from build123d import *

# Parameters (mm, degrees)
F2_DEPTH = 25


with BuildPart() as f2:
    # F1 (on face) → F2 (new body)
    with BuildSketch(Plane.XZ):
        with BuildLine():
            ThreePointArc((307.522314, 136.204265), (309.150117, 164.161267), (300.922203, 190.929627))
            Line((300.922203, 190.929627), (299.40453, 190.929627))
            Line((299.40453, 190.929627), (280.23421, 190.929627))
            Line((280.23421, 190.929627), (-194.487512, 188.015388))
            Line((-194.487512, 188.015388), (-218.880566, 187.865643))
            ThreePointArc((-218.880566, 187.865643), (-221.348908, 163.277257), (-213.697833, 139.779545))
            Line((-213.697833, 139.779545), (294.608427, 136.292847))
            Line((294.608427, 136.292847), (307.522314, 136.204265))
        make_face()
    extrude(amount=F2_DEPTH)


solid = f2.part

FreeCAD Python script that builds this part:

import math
import FreeCAD as App
import Part
import Sketcher

V = App.Vector
Q = App.Units.Quantity

doc = App.newDocument("Part")
params = doc.addObject("Spreadsheet::Sheet", "Params")
for row, (alias, value) in enumerate([
    ("sketch1_radius", "60 mm"),
    ("pad1_length", "25 mm"),
], start=1):
    params.set(f"A{row}", alias)
    params.set(f"B{row}", "=" + value)
    params.setAlias(f"B{row}", alias)

body = doc.addObject("PartDesign::Body", "Body")

# Sketch on XZ plane
sketch1 = body.newObject("Sketcher::SketchObject", "Sketch")
sketch1.AttachmentSupport = (doc.getObject("XZ_Plane"), [""])
sketch1.MapMode = "FlatFace"
sketch1.addGeometry([
    Part.ArcOfCircle(Part.Circle(V(230.718472, 154.702077, 0), V(0, 0, 1), 78.999995), math.radians(-13.541496), math.radians(27.295297)),  # 0
    Part.LineSegment(V(300.922203, 190.929627, 0), V(280.23421, 190.929627, 0)),  # 1
    Part.LineSegment(V(280.23421, 190.929627, 0), V(-194.487512, 188.015388, 0)),  # 2
    Part.LineSegment(V(-194.487512, 188.015388, 0), V(-218.880566, 187.865643, 0)),  # 3
    Part.ArcOfCircle(Part.Circle(V(-161.694399, 169.706837, 0), V(0, 0, 1), 60), math.radians(162.383356), math.radians(209.91986)),  # 4
    Part.LineSegment(V(-213.697833, 139.779545, 0), V(294.608427, 136.292847, 0)),  # 5
    Part.LineSegment(V(294.608427, 136.292847, 0), V(307.522314, 136.204265, 0)),  # 6
], False)
sketch1.addConstraint([
    Sketcher.Constraint("Coincident", 0, 2, 1, 1),
    Sketcher.Constraint("Coincident", 1, 2, 2, 1),
    Sketcher.Constraint("Coincident", 2, 2, 3, 1),
    Sketcher.Constraint("Coincident", 3, 2, 4, 1),
    Sketcher.Constraint("Coincident", 4, 2, 5, 1),
    Sketcher.Constraint("Coincident", 5, 2, 6, 1),
    Sketcher.Constraint("Coincident", 6, 2, 0, 1),
    Sketcher.Constraint("Horizontal", 1),
    Sketcher.Constraint("Parallel", 2, 3),
    Sketcher.Constraint("Parallel", 5, 6),
    Sketcher.Constraint("Radius", 4, Q("60 mm")),
    Sketcher.Constraint("Radius", 0, Q("78.999995 mm")),
    Sketcher.Constraint("DistanceX", 4, 3, -1, 1, Q("161.694399 mm")),
    Sketcher.Constraint("DistanceX", 4, 3, 0, 2, Q("462.616602 mm")),
    Sketcher.Constraint("DistanceY", 4, 2, 3, 2, Q("48.086098 mm")),
    Sketcher.Constraint("Distance", 5, Q("508.318218 mm")),
    Sketcher.Constraint("Distance", 6, Q("12.914191 mm")),
    Sketcher.Constraint("DistanceX", 1, 2, 1, 1, Q("20.687993 mm")),
    Sketcher.Constraint("DistanceY", -1, 1, 2, 2, Q("188.015388 mm")),
    Sketcher.Constraint("DistanceX", 4, 3, 0, 3, Q("392.412871 mm")),
    Sketcher.Constraint("DistanceY", 0, 3, 4, 3, Q("15.004759 mm")),
    Sketcher.Constraint("DistanceY", 4, 3, 2, 2, Q("18.308551 mm")),
    Sketcher.Constraint("DistanceX", 2, 2, 1, 2, Q("474.721722 mm")),
])
sketch1.setExpression("Constraints[10]", "Params.sketch1_radius")
pad1 = body.newObject("PartDesign::Pad", "Pad")
pad1.Profile = sketch1
pad1.setExpression("Length", "Params.pad1_length")

doc.recompute()
